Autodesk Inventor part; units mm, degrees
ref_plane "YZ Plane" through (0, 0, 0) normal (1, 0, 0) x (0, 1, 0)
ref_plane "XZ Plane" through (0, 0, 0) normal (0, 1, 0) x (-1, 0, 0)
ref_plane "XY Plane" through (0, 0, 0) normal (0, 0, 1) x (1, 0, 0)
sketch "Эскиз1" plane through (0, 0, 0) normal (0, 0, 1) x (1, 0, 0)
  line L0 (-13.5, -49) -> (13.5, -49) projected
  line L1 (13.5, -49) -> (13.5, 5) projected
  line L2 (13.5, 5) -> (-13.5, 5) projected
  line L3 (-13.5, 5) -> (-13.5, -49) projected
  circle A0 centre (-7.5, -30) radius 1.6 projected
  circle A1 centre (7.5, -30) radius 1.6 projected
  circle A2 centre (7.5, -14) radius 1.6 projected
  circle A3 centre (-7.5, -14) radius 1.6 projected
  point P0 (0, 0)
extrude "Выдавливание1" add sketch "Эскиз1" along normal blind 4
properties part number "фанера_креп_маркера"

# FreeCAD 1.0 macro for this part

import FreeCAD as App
import Part
import Sketcher
Q = App.Units.Quantity


def add_polygon(sketch, points):
    """Adds a closed chain of lines whose ends are joined by coincident constraints."""
    first, n = sketch.GeometryCount, len(points)
    for a, b in zip(points, points[1:] + points[:1]):
        sketch.addGeometry(Part.LineSegment(App.Vector(*a, 0), App.Vector(*b, 0)), False)
    for i in range(n):
        sketch.addConstraint(Sketcher.Constraint("Coincident", first + i, 2, first + (i + 1) % n, 1))

doc = App.newDocument("Part")
params = doc.addObject("Spreadsheet::Sheet", "Params")
for row, (alias, value) in enumerate([
    ("sketch1_diameter", "3.2 mm"),
    ("sketch1_width", "27 mm"),
    ("sketch1_height", "54 mm"),
    ("pad1_length", "4 mm"),
], start=1):
    params.set(f"A{row}", alias)
    params.set(f"B{row}", "=" + value)
    params.setAlias(f"B{row}", alias)

body = doc.addObject("PartDesign::Body", "Body")

# Sketch on XY plane
sketch1 = doc.addObject("Sketcher::SketchObject", "Sketch")
body.addObject(sketch1)
sketch1.AttachmentSupport = (doc.XY_Plane, [""])
sketch1.MapMode = "FlatFace"
add_polygon(sketch1, [(-13.5, 5), (-13.5, -49), (13.5, -49), (13.5, 5)])  # lines 0-3
sketch1.addGeometry(Part.Circle(App.Vector(-7.5, -30, 0), App.Vector(0, 0, 1), 1.6), False)  # 4
sketch1.addGeometry(Part.Circle(App.Vector(7.5, -30, 0), App.Vector(0, 0, 1), 1.6), False)  # 5
sketch1.addGeometry(Part.Circle(App.Vector(-7.5, -14, 0), App.Vector(0, 0, 1), 1.6), False)  # 6
sketch1.addGeometry(Part.Circle(App.Vector(7.5, -14, 0), App.Vector(0, 0, 1), 1.6), False)  # 7
sketch1.addConstraint([
    Sketcher.Constraint("Vertical", 0),
    Sketcher.Constraint("Horizontal", 1),
    Sketcher.Constraint("Vertical", 2),
    Sketcher.Constraint("Horizontal", 3),
    Sketcher.Constraint("Equal", 4, 5),
    Sketcher.Constraint("Equal", 5, 6),
    Sketcher.Constraint("Equal", 6, 7),
    Sketcher.Constraint("Symmetric", 4, 3, 5, 3, -2),
    Sketcher.Constraint("Symmetric", 6, 3, 7, 3, -2),
    Sketcher.Constraint("Vertical", 4, 3, 6, 3),
    Sketcher.Constraint("Diameter", 4, Q("3.2 mm")),
    Sketcher.Constraint("DistanceX", 1, 1, 1, 2, Q("27 mm")),
    Sketcher.Constraint("DistanceY", 0, 2, 0, 1, Q("54 mm")),
    Sketcher.Constraint("DistanceY", 4, 3, -1, 1, Q("30 mm")),
    Sketcher.Constraint("DistanceY", 6, 3, -1, 1, Q("14 mm")),
    Sketcher.Constraint("DistanceY", 0, 2, -1, 1, Q("49 mm")),
    Sketcher.Constraint("DistanceX", 4, 3, 5, 3, Q("15 mm")),
    Sketcher.Constraint("DistanceX", 0, 2, 4, 3, Q("6 mm")),
])
sketch1.setExpression("Constraints[14]", "Params.sketch1_diameter")
sketch1.setExpression("Constraints[15]", "Params.sketch1_width")
sketch1.setExpression("Constraints[16]", "Params.sketch1_height")
pad1 = doc.addObject("PartDesign::Pad", "Pad")
body.addObject(pad1)
pad1.Profile = sketch1
pad1.setExpression("Length", "Params.pad1_length")

doc.recompute()
